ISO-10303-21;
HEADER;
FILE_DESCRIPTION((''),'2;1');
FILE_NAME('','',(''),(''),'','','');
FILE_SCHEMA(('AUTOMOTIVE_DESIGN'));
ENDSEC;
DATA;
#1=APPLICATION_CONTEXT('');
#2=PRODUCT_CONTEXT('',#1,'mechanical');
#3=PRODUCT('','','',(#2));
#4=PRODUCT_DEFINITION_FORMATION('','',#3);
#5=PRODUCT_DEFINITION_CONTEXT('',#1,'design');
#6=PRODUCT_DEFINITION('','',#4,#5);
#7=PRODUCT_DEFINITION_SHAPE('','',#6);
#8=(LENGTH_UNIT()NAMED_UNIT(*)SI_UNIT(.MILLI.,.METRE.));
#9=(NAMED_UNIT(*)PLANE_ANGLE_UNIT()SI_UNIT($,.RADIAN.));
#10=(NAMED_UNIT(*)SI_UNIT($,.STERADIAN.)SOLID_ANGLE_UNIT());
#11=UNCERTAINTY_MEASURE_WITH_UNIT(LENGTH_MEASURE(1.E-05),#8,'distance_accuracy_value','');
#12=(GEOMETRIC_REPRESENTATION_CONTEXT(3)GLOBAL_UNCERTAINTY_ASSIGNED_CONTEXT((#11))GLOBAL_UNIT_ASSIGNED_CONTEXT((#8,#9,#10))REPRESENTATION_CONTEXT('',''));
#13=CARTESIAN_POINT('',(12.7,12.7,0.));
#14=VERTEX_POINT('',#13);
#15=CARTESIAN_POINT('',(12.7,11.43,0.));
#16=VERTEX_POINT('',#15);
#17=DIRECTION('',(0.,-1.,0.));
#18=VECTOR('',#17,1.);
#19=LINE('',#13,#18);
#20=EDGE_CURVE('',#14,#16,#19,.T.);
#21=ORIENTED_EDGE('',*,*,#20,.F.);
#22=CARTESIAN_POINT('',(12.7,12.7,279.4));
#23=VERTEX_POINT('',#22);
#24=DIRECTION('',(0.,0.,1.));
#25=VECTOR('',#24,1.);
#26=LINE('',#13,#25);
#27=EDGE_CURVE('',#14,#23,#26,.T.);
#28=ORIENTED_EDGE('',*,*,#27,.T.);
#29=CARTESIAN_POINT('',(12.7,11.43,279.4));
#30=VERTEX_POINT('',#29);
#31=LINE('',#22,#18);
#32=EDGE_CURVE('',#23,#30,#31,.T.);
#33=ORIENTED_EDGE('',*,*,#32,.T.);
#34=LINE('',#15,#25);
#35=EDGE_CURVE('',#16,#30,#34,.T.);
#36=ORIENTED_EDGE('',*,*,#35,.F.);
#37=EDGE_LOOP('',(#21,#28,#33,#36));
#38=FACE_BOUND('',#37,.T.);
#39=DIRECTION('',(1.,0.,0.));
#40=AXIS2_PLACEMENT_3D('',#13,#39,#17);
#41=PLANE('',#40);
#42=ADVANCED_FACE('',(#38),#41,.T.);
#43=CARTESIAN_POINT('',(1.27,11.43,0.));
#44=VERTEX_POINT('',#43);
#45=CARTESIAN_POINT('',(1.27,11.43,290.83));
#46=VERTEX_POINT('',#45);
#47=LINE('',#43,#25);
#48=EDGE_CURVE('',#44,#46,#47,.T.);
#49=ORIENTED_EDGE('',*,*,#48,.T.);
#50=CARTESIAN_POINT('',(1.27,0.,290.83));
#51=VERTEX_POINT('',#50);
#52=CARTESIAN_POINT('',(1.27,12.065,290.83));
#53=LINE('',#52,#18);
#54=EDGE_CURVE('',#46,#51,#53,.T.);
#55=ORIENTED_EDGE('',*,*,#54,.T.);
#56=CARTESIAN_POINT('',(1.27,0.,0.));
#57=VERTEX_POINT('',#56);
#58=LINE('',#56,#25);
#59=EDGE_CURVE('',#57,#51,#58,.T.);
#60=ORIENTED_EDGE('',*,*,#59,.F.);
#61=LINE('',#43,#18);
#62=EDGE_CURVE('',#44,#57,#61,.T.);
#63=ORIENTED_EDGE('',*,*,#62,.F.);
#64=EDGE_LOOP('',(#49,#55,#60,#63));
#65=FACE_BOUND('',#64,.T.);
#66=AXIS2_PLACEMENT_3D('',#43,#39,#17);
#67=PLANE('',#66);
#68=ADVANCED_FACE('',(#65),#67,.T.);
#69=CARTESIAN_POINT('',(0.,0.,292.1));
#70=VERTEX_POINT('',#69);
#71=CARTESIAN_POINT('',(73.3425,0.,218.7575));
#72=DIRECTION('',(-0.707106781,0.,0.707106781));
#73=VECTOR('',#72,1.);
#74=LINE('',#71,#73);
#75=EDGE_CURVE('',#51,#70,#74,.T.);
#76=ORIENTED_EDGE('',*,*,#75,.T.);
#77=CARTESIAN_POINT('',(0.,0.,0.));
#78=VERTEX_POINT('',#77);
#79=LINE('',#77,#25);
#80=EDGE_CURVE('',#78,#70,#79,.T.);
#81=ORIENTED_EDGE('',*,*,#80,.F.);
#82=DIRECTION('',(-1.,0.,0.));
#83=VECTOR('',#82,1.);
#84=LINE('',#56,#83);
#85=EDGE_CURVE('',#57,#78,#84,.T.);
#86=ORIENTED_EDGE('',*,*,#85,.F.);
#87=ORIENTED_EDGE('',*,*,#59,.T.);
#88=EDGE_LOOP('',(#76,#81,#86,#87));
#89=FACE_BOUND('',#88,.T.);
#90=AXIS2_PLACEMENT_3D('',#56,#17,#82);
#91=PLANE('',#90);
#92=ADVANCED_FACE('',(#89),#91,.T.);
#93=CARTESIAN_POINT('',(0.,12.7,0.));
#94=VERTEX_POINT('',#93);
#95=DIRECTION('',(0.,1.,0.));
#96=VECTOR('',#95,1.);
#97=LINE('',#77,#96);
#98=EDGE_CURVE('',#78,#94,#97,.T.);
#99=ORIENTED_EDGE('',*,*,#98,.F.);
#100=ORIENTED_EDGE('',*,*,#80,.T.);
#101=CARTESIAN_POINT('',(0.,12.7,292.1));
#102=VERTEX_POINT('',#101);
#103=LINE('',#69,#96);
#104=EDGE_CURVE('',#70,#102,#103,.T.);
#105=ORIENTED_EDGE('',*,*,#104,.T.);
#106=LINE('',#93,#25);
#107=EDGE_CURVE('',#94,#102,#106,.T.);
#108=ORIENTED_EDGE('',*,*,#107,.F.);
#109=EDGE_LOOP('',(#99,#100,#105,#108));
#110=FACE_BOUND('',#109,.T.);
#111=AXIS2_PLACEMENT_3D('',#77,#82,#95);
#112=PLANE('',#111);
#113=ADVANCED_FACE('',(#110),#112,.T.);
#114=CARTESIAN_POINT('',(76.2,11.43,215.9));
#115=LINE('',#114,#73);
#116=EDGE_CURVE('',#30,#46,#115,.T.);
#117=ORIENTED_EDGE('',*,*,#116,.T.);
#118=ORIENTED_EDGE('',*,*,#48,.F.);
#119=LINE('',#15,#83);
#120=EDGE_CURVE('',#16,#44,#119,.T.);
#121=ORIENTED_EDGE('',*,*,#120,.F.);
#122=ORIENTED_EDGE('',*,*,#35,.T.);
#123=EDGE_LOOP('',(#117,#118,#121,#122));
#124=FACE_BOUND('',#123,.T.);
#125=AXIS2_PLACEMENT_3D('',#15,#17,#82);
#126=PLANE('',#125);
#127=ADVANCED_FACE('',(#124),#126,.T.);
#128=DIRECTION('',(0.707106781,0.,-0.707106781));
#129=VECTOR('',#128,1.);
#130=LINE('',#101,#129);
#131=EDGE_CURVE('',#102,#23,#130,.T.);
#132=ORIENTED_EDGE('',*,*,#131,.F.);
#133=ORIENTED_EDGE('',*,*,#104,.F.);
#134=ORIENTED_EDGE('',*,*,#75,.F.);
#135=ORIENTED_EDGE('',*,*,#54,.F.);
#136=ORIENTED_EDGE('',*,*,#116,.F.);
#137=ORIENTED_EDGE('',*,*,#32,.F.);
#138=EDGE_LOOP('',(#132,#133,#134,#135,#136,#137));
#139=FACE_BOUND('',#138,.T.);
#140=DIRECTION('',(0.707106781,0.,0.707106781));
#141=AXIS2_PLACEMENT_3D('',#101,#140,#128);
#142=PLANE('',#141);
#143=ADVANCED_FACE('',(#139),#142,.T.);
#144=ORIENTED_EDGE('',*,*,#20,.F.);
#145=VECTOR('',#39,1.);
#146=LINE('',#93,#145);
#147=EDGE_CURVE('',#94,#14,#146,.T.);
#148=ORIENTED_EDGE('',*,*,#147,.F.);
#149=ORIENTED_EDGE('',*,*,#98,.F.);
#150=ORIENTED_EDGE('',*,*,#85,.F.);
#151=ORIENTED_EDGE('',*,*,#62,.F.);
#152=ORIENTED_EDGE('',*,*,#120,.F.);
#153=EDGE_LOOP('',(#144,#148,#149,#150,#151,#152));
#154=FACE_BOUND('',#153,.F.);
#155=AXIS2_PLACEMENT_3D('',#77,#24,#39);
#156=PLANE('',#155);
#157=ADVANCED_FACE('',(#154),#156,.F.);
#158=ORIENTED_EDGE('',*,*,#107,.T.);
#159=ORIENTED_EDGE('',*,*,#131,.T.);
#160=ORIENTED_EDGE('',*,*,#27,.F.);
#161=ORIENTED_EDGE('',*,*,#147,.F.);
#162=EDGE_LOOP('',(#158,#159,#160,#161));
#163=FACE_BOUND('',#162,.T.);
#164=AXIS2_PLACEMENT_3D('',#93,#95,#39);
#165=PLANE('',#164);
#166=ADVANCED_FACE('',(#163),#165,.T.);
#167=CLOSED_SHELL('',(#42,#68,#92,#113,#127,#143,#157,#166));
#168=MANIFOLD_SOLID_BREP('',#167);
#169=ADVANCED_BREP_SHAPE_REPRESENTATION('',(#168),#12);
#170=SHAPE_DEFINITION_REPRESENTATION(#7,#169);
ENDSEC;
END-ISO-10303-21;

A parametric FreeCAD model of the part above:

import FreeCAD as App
import Part
import Sketcher

V = App.Vector
Q = App.Units.Quantity


def add_polygon(sketch, points):
    """Adds a closed chain of lines whose ends are joined by coincident constraints."""
    first, n = sketch.GeometryCount, len(points)
    for a, b in zip(points, points[1:] + points[:1]):
        sketch.addGeometry(Part.LineSegment(App.Vector(*a, 0), App.Vector(*b, 0)), False)
    for i in range(n):
        sketch.addConstraint(Sketcher.Constraint("Coincident", first + i, 2, first + (i + 1) % n, 1))

doc = App.newDocument("Part")
body = doc.addObject("PartDesign::Body", "Body")

# Sketch on XY plane
sketch1 = body.newObject("Sketcher::SketchObject", "Sketch")
sketch1.AttachmentSupport = (doc.getObject("XY_Plane"), [""])
sketch1.MapMode = "FlatFace"
add_polygon(sketch1, [(0, 12.7), (0, 0), (1.27, 0), (1.27, 11.43), (12.7, 11.43), (12.7, 12.7)])  # lines 0-5
sketch1.addConstraint(Sketcher.Constraint("Vertical", 0))
sketch1.addConstraint(Sketcher.Constraint("Horizontal", 1))
sketch1.addConstraint(Sketcher.Constraint("Vertical", 2))
sketch1.addConstraint(Sketcher.Constraint("Horizontal", 3))
sketch1.addConstraint(Sketcher.Constraint("Vertical", 4))
sketch1.addConstraint(Sketcher.Constraint("Horizontal", 5))
sketch1.addConstraint(Sketcher.Constraint("Coincident", 0, 2, -1, 1))
sketch1.addConstraint(Sketcher.Constraint("Equal", 5, 0))
sketch1.addConstraint(Sketcher.Constraint("Equal", 3, 2))
sketch1.addConstraint(Sketcher.Constraint("DistanceX", 5, 2, 5, 1, Q("0.5 in")))
sketch1.addConstraint(Sketcher.Constraint("DistanceX", 1, 1, 1, 2, Q("0.05 in")))
pad1 = body.newObject("PartDesign::Pad", "Pad")
pad1.Profile = sketch1
pad1.Length = Q("11.5 in")

# Sketch on XZ plane
sketch2 = body.newObject("Sketcher::SketchObject", "Sketch001")
sketch2.AttachmentSupport = (doc.getObject("XZ_Plane"), [""])
sketch2.MapMode = "FlatFace"
sketch2.AttachmentOffset = App.Placement(V(0, 0, -0.5 * 25.4), App.Rotation())
add_polygon(sketch2, [(0, 292.1), (12.7, 292.1), (12.7, 279.4)])  # lines 0-2
sketch2.addConstraint(Sketcher.Constraint("Horizontal", 0))
sketch2.addConstraint(Sketcher.Constraint("Vertical", 1))
sketch2.addConstraint(Sketcher.Constraint("PointOnObject", 2, 2, -2))
sketch2.addConstraint(Sketcher.Constraint("Equal", 0, 1))
sketch2.addConstraint(Sketcher.Constraint("DistanceX", 0, 1, 0, 2, Q("0.5 in")))
sketch2.addConstraint(Sketcher.Constraint("DistanceY", -1, 1, 1, 2, Q("11 in")))
pocket1 = body.newObject("PartDesign::Pocket", "Pocket")
pocket1.Profile = sketch2
pocket1.Length = Q("1 in")
pocket1.Reversed = True

doc.recompute()
